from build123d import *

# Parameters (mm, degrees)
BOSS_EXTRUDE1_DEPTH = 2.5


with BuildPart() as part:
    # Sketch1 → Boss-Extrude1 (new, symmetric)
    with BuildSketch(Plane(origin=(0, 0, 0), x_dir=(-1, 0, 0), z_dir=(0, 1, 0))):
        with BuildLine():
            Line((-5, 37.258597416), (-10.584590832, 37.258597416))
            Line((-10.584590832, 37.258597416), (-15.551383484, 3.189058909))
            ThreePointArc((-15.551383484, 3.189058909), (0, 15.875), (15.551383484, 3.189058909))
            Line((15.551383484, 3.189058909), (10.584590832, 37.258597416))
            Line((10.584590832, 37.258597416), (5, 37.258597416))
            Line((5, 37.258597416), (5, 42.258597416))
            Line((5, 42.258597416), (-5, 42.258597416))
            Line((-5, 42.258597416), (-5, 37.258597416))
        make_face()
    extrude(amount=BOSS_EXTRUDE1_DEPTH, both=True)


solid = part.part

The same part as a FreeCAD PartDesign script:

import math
import FreeCAD as App
import Part
import Sketcher
from FreeCAD import Vector
Q = App.Units.Quantity

doc = App.newDocument("Part")
params = doc.addObject("Spreadsheet::Sheet", "Params")
for row, (alias, value) in enumerate([
    ("sketch1_width", "10 mm"),
    ("sketch1_height", "5 mm"),
    ("pad1_length", "5 mm"),
], start=1):
    params.set(f"A{row}", alias)
    params.set(f"B{row}", "=" + value)
    params.setAlias(f"B{row}", alias)

body = doc.addObject("PartDesign::Body", "Body")

# Sketch on XZ plane
sketch1 = body.newObject("Sketcher::SketchObject", "Sketch")
sketch1.AttachmentSupport = (doc.getObject("XZ_Plane"), [""])
sketch1.MapMode = "FlatFace"
sketch1.addGeometry([
    Part.LineSegment(Vector(5, 37, 0), Vector(11, 37, 0)),  # 0
    Part.LineSegment(Vector(11, 37, 0), Vector(16, 3, 0)),  # 1
    Part.ArcOfCircle(Part.Circle(Vector(0, 0, 0), Vector(0, 0, 1), 16), math.radians(12), math.radians(168)),  # 2
    Part.LineSegment(Vector(-16, 3, 0), Vector(-11, 37, 0)),  # 3
    Part.LineSegment(Vector(-11, 37, 0), Vector(-5, 37, 0)),  # 4
    Part.LineSegment(Vector(-5, 37, 0), Vector(-5, 42, 0)),  # 5
    Part.LineSegment(Vector(-5, 42, 0), Vector(5, 42, 0)),  # 6
    Part.LineSegment(Vector(5, 42, 0), Vector(5, 37, 0)),  # 7
], False)
sketch1.addConstraint([
    Sketcher.Constraint("Coincident", 0, 2, 1, 1),
    Sketcher.Constraint("Coincident", 1, 2, 2, 1),
    Sketcher.Constraint("Coincident", 2, 2, 3, 1),
    Sketcher.Constraint("Coincident", 3, 2, 4, 1),
    Sketcher.Constraint("Coincident", 4, 2, 5, 1),
    Sketcher.Constraint("Coincident", 5, 2, 6, 1),
    Sketcher.Constraint("Coincident", 6, 2, 7, 1),
    Sketcher.Constraint("Coincident", 7, 2, 0, 1),
    Sketcher.Constraint("Horizontal", 0),
    Sketcher.Constraint("Horizontal", 4),
    Sketcher.Constraint("Vertical", 5),
    Sketcher.Constraint("Horizontal", 6),
    Sketcher.Constraint("Vertical", 7),
    Sketcher.Constraint("Coincident", 2, 3, -1, 1),
    Sketcher.Constraint("Symmetric", 0, 2, 3, 2, -2),
    Sketcher.Constraint("Horizontal", 1, 2, 2, 2),
    Sketcher.Constraint("Equal", 0, 4),
    Sketcher.Constraint("DistanceX", 6, 1, 6, 2, Q("10 mm")),
    Sketcher.Constraint("DistanceY", 5, 1, 5, 2, Q("5 mm")),
    Sketcher.Constraint("Radius", 2, Q("15.875 mm")),
    Sketcher.Constraint("DistanceX", 0, 1, 0, 2, Q("5.584591 mm")),
    Sketcher.Constraint("DistanceY", -1, 1, 1, 2, Q("3.189059 mm")),
    Sketcher.Constraint("DistanceY", 1, 2, 0, 2, Q("34.069539 mm")),
])
sketch1.setExpression("Constraints[17]", "Params.sketch1_width")
sketch1.setExpression("Constraints[18]", "Params.sketch1_height")
pad1 = body.newObject("PartDesign::Pad", "Pad")
pad1.Profile = sketch1
pad1.setExpression("Length", "Params.pad1_length")
pad1.Midplane = True

doc.recompute()
